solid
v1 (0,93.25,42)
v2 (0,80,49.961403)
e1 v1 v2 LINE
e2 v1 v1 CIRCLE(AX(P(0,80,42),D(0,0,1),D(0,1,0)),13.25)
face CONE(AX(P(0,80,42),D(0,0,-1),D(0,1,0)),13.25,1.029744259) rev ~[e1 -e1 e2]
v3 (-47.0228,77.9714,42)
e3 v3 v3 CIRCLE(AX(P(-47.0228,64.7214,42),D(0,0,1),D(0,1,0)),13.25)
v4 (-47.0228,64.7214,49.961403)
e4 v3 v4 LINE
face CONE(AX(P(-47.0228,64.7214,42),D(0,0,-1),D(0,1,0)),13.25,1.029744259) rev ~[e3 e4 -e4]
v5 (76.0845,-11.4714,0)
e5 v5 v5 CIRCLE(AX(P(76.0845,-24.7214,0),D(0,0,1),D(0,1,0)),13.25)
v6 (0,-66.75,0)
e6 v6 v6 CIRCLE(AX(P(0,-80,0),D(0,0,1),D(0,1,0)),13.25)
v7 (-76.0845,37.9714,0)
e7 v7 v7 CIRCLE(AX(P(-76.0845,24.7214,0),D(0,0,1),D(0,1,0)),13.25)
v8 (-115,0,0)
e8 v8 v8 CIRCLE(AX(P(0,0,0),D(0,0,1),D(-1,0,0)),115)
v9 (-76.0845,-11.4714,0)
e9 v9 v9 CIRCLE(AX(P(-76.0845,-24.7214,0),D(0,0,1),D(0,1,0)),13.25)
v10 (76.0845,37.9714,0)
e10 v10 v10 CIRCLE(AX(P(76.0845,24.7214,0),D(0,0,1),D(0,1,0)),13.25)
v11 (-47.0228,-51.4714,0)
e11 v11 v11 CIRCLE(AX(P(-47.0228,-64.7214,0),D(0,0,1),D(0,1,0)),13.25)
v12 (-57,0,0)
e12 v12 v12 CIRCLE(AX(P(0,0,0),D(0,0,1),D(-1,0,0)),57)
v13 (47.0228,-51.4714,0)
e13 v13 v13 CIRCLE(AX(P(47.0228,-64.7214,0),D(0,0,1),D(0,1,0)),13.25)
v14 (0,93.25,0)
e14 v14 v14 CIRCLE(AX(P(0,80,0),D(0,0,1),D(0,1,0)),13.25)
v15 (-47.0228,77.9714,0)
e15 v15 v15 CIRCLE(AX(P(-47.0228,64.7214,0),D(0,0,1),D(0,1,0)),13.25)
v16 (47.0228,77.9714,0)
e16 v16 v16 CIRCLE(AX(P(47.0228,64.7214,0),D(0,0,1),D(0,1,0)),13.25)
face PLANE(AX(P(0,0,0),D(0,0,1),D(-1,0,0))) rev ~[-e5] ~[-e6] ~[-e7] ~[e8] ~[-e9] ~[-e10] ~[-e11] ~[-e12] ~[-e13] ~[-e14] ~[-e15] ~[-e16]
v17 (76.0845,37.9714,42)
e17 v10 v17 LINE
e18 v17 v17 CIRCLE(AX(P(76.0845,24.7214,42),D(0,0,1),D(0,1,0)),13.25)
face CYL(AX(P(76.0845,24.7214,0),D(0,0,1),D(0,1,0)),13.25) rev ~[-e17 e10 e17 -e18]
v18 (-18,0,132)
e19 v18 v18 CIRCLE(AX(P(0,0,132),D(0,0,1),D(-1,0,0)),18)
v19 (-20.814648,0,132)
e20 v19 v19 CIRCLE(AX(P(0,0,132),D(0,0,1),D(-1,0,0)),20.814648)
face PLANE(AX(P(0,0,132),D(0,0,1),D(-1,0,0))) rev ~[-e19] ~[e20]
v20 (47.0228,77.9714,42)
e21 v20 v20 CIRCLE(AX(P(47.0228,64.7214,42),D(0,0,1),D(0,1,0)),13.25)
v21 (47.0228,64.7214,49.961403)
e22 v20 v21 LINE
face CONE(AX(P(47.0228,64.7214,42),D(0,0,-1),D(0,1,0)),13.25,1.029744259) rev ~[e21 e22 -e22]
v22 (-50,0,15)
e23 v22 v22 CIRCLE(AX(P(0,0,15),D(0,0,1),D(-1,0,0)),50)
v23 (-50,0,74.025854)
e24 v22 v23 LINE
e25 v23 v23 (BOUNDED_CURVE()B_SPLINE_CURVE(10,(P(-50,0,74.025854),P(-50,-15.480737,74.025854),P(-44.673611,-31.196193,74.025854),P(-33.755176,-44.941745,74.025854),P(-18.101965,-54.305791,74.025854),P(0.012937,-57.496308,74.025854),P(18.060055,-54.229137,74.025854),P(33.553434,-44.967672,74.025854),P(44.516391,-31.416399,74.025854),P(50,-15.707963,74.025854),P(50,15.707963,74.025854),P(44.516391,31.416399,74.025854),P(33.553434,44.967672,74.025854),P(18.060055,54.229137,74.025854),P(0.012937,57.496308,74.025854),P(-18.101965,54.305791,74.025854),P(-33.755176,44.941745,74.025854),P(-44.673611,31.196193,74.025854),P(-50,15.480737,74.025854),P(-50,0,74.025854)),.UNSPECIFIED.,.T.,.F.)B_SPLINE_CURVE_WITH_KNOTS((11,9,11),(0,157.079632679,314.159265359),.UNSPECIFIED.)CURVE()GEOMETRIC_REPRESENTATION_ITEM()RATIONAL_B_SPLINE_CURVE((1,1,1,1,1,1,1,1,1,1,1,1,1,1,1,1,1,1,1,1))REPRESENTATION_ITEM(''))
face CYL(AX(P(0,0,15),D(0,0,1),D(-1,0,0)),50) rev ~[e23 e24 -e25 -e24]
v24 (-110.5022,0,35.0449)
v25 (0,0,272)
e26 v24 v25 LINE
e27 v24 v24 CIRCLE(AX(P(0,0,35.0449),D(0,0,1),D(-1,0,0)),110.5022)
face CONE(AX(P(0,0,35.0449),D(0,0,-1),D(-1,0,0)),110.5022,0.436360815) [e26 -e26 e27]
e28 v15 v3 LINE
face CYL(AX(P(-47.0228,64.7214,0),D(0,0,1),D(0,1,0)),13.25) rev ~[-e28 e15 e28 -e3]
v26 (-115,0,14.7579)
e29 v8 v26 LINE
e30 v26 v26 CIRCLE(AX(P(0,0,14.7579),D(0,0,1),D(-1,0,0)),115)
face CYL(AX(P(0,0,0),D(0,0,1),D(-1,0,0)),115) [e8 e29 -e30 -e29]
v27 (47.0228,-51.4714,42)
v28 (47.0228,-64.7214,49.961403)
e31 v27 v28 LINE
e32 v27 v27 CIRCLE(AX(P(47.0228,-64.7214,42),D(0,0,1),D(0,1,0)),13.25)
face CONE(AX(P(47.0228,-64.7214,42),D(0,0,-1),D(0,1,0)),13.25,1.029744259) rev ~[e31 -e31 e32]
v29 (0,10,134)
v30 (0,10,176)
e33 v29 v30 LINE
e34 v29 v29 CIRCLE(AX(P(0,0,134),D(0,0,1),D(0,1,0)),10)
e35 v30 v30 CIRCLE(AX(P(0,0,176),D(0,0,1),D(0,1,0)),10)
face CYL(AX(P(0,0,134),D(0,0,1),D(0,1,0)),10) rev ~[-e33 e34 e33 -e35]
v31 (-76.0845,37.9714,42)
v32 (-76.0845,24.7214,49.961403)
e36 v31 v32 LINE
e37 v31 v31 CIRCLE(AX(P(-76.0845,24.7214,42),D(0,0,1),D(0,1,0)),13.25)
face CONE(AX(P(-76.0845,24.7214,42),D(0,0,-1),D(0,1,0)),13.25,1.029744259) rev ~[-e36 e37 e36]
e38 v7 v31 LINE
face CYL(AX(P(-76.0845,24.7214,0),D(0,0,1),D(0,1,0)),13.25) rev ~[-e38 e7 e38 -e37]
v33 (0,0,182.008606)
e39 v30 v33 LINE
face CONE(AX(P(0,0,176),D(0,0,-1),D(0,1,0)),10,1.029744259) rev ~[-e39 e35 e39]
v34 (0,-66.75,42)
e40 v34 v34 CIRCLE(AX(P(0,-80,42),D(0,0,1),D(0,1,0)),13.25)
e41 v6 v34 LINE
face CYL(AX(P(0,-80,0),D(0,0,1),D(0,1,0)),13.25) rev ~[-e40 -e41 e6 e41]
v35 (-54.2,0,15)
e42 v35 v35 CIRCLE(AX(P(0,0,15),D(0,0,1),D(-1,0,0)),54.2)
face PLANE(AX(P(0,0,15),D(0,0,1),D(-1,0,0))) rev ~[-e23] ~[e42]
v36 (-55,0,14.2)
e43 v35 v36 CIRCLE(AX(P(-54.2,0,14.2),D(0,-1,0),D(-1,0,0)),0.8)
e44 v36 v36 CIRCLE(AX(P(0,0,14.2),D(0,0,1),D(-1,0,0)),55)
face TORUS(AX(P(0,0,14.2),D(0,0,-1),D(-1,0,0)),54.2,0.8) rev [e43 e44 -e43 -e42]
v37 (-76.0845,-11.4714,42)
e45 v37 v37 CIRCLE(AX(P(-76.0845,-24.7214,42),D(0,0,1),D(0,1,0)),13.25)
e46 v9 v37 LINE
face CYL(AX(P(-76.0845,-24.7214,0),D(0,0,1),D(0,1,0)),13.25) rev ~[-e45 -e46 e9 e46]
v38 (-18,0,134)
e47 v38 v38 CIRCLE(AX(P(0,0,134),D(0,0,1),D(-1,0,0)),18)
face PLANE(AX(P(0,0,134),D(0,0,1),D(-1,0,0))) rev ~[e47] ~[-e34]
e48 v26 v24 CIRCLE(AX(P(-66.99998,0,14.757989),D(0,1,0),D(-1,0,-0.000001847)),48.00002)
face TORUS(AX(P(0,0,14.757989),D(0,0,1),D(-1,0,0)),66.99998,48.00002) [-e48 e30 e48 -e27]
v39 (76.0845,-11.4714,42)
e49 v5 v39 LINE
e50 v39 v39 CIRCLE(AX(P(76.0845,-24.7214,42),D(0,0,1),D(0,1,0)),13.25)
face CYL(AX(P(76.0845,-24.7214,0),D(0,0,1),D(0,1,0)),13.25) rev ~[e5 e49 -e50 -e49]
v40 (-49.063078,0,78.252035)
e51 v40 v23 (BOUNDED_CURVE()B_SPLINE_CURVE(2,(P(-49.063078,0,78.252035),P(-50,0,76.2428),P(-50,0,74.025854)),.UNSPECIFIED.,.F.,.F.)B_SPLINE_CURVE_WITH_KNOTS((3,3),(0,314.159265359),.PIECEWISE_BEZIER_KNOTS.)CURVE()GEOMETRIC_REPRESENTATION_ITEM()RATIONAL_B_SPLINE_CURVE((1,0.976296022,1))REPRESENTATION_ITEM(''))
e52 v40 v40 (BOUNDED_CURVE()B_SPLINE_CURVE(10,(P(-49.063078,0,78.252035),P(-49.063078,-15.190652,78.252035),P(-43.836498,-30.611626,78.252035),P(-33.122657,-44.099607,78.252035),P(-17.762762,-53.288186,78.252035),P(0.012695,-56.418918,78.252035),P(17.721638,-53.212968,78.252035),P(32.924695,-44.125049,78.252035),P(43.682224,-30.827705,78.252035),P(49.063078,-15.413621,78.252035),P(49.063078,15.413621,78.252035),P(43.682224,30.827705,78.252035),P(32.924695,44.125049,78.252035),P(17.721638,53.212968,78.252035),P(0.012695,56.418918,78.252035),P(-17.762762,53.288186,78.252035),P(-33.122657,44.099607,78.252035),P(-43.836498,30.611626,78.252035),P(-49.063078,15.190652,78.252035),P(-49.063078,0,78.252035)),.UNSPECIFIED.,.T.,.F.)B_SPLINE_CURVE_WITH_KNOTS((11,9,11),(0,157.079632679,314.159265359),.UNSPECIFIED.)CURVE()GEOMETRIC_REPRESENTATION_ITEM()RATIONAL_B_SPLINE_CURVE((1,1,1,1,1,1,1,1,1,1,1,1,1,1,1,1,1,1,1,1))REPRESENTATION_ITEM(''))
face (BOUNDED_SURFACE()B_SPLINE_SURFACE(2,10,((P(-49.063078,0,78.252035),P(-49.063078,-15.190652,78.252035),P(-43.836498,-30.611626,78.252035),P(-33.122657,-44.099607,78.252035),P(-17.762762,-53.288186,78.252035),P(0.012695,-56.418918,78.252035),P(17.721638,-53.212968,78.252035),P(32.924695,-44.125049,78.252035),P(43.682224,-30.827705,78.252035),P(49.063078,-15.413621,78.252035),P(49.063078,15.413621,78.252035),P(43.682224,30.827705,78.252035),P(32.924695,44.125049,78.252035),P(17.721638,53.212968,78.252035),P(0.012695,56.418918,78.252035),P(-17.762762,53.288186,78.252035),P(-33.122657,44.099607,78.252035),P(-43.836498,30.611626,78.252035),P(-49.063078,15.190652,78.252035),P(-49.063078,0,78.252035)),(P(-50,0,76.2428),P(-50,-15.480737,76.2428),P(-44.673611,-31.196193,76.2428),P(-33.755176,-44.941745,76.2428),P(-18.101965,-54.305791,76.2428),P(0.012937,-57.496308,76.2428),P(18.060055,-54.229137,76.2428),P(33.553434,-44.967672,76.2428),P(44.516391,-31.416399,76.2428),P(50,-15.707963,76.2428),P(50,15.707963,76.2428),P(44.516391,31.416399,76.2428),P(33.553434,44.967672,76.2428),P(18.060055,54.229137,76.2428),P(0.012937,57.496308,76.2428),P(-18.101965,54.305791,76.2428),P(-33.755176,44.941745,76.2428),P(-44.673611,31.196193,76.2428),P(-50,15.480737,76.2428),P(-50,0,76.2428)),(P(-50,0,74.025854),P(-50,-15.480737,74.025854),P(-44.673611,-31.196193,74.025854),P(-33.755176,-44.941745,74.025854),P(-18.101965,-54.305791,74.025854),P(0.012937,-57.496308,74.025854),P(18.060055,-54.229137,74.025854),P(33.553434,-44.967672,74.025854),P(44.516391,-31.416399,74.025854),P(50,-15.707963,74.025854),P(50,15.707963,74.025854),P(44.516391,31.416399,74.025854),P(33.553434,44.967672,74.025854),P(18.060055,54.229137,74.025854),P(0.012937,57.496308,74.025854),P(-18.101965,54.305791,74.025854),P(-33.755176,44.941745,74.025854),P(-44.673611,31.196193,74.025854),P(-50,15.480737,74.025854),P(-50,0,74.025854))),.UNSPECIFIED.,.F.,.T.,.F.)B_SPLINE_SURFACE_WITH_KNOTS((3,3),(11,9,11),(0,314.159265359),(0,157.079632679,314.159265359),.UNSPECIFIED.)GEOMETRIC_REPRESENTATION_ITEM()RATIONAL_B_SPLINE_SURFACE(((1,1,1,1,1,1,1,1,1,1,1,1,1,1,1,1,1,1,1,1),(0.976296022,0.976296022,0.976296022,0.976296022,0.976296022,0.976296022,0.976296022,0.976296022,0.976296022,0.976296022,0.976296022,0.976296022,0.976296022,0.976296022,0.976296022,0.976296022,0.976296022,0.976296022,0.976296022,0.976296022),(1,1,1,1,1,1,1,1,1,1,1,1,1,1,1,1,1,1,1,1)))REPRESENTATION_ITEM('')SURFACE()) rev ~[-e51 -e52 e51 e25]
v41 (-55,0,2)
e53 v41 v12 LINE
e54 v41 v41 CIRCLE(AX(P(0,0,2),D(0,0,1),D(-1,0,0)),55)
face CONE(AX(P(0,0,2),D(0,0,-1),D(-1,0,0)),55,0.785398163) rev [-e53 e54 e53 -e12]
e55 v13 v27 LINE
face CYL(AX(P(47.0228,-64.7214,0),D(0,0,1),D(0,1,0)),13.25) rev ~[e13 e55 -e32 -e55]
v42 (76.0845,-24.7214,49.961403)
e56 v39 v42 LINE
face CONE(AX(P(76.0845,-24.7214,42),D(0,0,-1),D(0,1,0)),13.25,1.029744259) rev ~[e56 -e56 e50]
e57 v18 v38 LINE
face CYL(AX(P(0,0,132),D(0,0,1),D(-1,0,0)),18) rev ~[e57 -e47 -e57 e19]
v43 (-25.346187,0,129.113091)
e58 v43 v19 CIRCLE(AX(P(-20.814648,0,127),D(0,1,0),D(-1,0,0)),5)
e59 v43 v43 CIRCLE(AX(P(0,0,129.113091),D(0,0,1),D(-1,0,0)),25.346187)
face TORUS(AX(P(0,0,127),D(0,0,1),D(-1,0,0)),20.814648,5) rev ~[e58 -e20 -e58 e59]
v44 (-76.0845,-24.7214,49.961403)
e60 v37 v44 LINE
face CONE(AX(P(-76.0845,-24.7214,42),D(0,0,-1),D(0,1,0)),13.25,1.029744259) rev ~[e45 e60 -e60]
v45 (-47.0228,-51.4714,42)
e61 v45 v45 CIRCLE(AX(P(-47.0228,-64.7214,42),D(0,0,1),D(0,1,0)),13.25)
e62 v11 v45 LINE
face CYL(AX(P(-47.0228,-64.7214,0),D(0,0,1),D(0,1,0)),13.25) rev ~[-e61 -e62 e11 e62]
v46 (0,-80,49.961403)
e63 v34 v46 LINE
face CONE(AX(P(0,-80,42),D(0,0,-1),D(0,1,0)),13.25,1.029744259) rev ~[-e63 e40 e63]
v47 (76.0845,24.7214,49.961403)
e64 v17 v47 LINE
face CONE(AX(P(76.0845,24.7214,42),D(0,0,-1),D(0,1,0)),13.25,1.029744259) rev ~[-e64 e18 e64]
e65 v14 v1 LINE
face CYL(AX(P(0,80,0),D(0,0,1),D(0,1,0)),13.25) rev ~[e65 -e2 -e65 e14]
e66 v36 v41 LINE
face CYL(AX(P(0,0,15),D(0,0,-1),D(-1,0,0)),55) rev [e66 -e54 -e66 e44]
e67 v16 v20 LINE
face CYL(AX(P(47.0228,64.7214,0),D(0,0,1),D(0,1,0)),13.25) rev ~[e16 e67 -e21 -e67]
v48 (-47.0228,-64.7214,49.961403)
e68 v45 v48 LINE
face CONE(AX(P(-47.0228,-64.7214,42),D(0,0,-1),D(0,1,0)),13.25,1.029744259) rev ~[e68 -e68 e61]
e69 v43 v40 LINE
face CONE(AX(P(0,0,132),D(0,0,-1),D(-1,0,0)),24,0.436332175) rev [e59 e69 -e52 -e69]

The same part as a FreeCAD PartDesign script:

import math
import FreeCAD as App
import Part
import Sketcher

V = App.Vector
Q = App.Units.Quantity


def edges_at(feature, points):
    """Names of the edges that pass closest to the given points."""
    edges = feature.Shape.Edges
    near = lambda p: min(range(len(edges)), key=lambda i: edges[i].distToShape(Part.Vertex(*p))[0])
    return sorted({f"Edge{near(p) + 1}" for p in points})

doc = App.newDocument("Part")
body = doc.addObject("PartDesign::Body", "Body")

# Sketch on XZ plane
sketch1 = doc.addObject("Sketcher::SketchObject", "Sketch")
body.addObject(sketch1)
sketch1.AttachmentSupport = (doc.XZ_Plane, [""])
sketch1.MapMode = "FlatFace"
sketch1.addGeometry([
    Part.LineSegment(V(-57, 0, 0), V(-115, 0, 0)),  # 0
    Part.LineSegment(V(-115, 0, 0), V(-115, 14.7579, 0)),  # 1
    Part.ArcOfCircle(Part.Circle(V(-67, 14.7579, 0), V(0, 0, 1), 48), math.radians(154.998279), math.radians(180)),  # 2
    Part.LineSegment(V(-110.5022, 35.0449, 0), V(0, 272, 0)),  # 3
    Part.LineSegment(V(0, 272, 0), V(0, 134, 0)),  # 4
    Part.LineSegment(V(0, 134, 0), V(-18, 134, 0)),  # 5
    Part.LineSegment(V(-18, 134, 0), V(-18, 132, 0)),  # 6
    Part.LineSegment(V(-18, 132, 0), V(-24, 132, 0)),  # 7
    Part.LineSegment(V(-24, 132, 0), V(-50, 76.2428, 0)),  # 8
    Part.LineSegment(V(-50, 76.2428, 0), V(-50, 15, 0)),  # 9
    Part.LineSegment(V(-50, 15, 0), V(-55, 15, 0)),  # 10
    Part.LineSegment(V(-55, 15, 0), V(-55, 2, 0)),  # 11
    Part.LineSegment(V(-55, 2, 0), V(-57, 0, 0)),  # 12
], False)
sketch1.addConstraint([
    Sketcher.Constraint("Coincident", 0, 2, 1, 1),
    Sketcher.Constraint("Coincident", 1, 2, 2, 2),
    Sketcher.Constraint("Coincident", 2, 1, 3, 1),
    Sketcher.Constraint("Coincident", 3, 2, 4, 1),
    Sketcher.Constraint("Coincident", 4, 2, 5, 1),
    Sketcher.Constraint("Coincident", 5, 2, 6, 1),
    Sketcher.Constraint("Coincident", 6, 2, 7, 1),
    Sketcher.Constraint("Coincident", 7, 2, 8, 1),
    Sketcher.Constraint("Coincident", 8, 2, 9, 1),
    Sketcher.Constraint("Coincident", 9, 2, 10, 1),
    Sketcher.Constraint("Coincident", 10, 2, 11, 1),
    Sketcher.Constraint("Coincident", 11, 2, 12, 1),
    Sketcher.Constraint("Coincident", 12, 2, 0, 1),
    Sketcher.Constraint("Horizontal", 0),
    Sketcher.Constraint("Vertical", 1),
    Sketcher.Constraint("Vertical", 4),
    Sketcher.Constraint("Horizontal", 5),
    Sketcher.Constraint("Vertical", 6),
    Sketcher.Constraint("Horizontal", 7),
    Sketcher.Constraint("Vertical", 9),
    Sketcher.Constraint("Horizontal", 10),
    Sketcher.Constraint("Vertical", 11),
    Sketcher.Constraint("PointOnObject", 0, 2, -1),
    Sketcher.Constraint("PointOnObject", 3, 2, -2),
    Sketcher.Constraint("Radius", 2, Q("48 mm")),
    Sketcher.Constraint("DistanceX", 0, 2, 0, 1, Q("58 mm")),
    Sketcher.Constraint("DistanceX", 5, 2, 5, 1, Q("18 mm")),
    Sketcher.Constraint("DistanceX", 7, 2, 7, 1, Q("6 mm")),
    Sketcher.Constraint("DistanceX", 10, 2, 10, 1, Q("5 mm")),
    Sketcher.Constraint("DistanceY", 4, 2, 4, 1, Q("138 mm")),
    Sketcher.Constraint("DistanceY", 6, 2, 6, 1, Q("2 mm")),
    Sketcher.Constraint("DistanceY", 11, 2, 11, 1, Q("13 mm")),
    Sketcher.Constraint("DistanceX", 2, 3, -1, 1, Q("67 mm")),
    Sketcher.Constraint("DistanceY", -1, 1, 3, 2, Q("272 mm")),
    Sketcher.Constraint("DistanceX", 8, 2, -1, 1, Q("50 mm")),
    Sketcher.Constraint("DistanceY", -1, 1, 9, 2, Q("15 mm")),
    Sketcher.Constraint("DistanceY", 1, 1, 1, 2, Q("14.758 mm")),
    Sketcher.Constraint("DistanceY", 9, 2, 9, 1, Q("61.2428 mm")),
    Sketcher.Constraint("DistanceY", -1, 1, 2, 3, Q("14.758 mm")),
    Sketcher.Constraint("DistanceY", -1, 1, 2, 1, Q("35.045 mm")),
])
revolution = doc.addObject("PartDesign::Revolution", "Revolution")
body.addObject(revolution)
revolution.Profile = sketch1
revolution.ReferenceAxis = (sketch1, ["V_Axis"])
revolution.Angle = 360

# Sketch on XY plane
sketch2 = doc.addObject("Sketcher::SketchObject", "Sketch001")
body.addObject(sketch2)
sketch2.AttachmentSupport = (doc.XY_Plane, [""])
sketch2.MapMode = "FlatFace"
sketch2.AttachmentOffset = App.Placement(V(0, 0, 134), App.Rotation())
sketch2.addGeometry(Part.Circle(V(0, 0, 0), V(0, 0, 1), 10), False)
sketch2.addConstraint([
    Sketcher.Constraint("Coincident", 0, 3, -1, 1),
    Sketcher.Constraint("Diameter", 0, Q("20 mm")),
])
doc.recompute()
hole = doc.addObject("PartDesign::Hole", "Hole")
body.addObject(hole)
hole.Profile = sketch2
hole.ThreadType = "None"
hole.Diameter = 20
hole.DepthType = "Dimension"
hole.Depth = 42
hole.DrillPoint = "Angled"
hole.DrillPointAngle = 118
hole.Reversed = True
doc.recompute()

fillet = doc.addObject("PartDesign::Fillet", "Fillet")
body.addObject(fillet)
fillet.Base = (hole, edges_at(hole, [(-22.376, 8.679, 132)]))
fillet.Radius = 5
doc.recompute()

fillet2 = doc.addObject("PartDesign::Fillet", "Fillet001")
body.addObject(fillet2)
fillet2.Base = (fillet, edges_at(fillet, [(-46.616, 18.081, 76.243)]))
fillet2.Radius = 10
doc.recompute()

fillet3 = doc.addObject("PartDesign::Fillet", "Fillet002")
body.addObject(fillet3)
fillet3.Base = (fillet2, edges_at(fillet2, [(-51.278, 19.889, 15)]))
fillet3.Radius = 0.8

# Sketch on XY plane
sketch3 = doc.addObject("Sketcher::SketchObject", "Sketch002")
body.addObject(sketch3)
sketch3.AttachmentSupport = (doc.XY_Plane, [""])
sketch3.MapMode = "FlatFace"
sketch3.addGeometry([
    Part.Circle(V(0, 80, 0), V(0, 0, 1), 13),  # 0
    Part.Circle(V(-76, 25, 0), V(0, 0, 1), 13),  # 1
    Part.Circle(V(-76, -25, 0), V(0, 0, 1), 13),  # 2
    Part.Circle(V(-47, 65, 0), V(0, 0, 1), 13),  # 3
    Part.Circle(V(47, 65, 0), V(0, 0, 1), 13),  # 4
    Part.Circle(V(76, 25, 0), V(0, 0, 1), 13),  # 5
    Part.Circle(V(76, -25, 0), V(0, 0, 1), 13),  # 6
    Part.Circle(V(47, -65, 0), V(0, 0, 1), 13),  # 7
    Part.Circle(V(0, -80, 0), V(0, 0, 1), 13),  # 8
    Part.Circle(V(-47, -65, 0), V(0, 0, 1), 13),  # 9
], False)
sketch3.addConstraint([
    Sketcher.Constraint("Equal", 0, 1),
    Sketcher.Constraint("Equal", 1, 2),
    Sketcher.Constraint("Equal", 2, 3),
    Sketcher.Constraint("Equal", 3, 4),
    Sketcher.Constraint("Equal", 4, 5),
    Sketcher.Constraint("Equal", 5, 6),
    Sketcher.Constraint("Equal", 6, 7),
    Sketcher.Constraint("Equal", 7, 8),
    Sketcher.Constraint("Equal", 8, 9),
    Sketcher.Constraint("Symmetric", 2, 3, 5, 3, -1, 1),
    Sketcher.Constraint("Symmetric", 1, 3, 6, 3, -1, 1),
    Sketcher.Constraint("Symmetric", 3, 3, 7, 3, -1, 1),
    Sketcher.Constraint("Symmetric", 0, 3, 8, 3, -1, 1),
    Sketcher.Constraint("Symmetric", 4, 3, 9, 3, -1, 1),
    Sketcher.Constraint("Symmetric", 3, 3, 4, 3, -2),
    Sketcher.Constraint("Symmetric", 1, 3, 5, 3, -2),
    Sketcher.Constraint("PointOnObject", 0, 3, -2),
    Sketcher.Constraint("Diameter", 0, Q("26.5 mm")),
    Sketcher.Constraint("DistanceY", -1, 1, 0, 3, Q("80 mm")),
    Sketcher.Constraint("DistanceY", 1, 3, 3, 3, Q("40 mm")),
    Sketcher.Constraint("DistanceX", 1, 3, 5, 3, Q("152.169 mm")),
    Sketcher.Constraint("DistanceY", -1, 1, 1, 3, Q("24.7214 mm")),
    Sketcher.Constraint("DistanceX", 3, 3, -1, 1, Q("47.0228 mm")),
])
doc.recompute()
hole2 = doc.addObject("PartDesign::Hole", "Hole001")
body.addObject(hole2)
hole2.Profile = sketch3
hole2.ThreadType = "None"
hole2.Diameter = 26.5
hole2.DepthType = "Dimension"
hole2.Depth = 42
hole2.DrillPoint = "Angled"
hole2.DrillPointAngle = 118
hole2.Reversed = True

doc.recompute()
